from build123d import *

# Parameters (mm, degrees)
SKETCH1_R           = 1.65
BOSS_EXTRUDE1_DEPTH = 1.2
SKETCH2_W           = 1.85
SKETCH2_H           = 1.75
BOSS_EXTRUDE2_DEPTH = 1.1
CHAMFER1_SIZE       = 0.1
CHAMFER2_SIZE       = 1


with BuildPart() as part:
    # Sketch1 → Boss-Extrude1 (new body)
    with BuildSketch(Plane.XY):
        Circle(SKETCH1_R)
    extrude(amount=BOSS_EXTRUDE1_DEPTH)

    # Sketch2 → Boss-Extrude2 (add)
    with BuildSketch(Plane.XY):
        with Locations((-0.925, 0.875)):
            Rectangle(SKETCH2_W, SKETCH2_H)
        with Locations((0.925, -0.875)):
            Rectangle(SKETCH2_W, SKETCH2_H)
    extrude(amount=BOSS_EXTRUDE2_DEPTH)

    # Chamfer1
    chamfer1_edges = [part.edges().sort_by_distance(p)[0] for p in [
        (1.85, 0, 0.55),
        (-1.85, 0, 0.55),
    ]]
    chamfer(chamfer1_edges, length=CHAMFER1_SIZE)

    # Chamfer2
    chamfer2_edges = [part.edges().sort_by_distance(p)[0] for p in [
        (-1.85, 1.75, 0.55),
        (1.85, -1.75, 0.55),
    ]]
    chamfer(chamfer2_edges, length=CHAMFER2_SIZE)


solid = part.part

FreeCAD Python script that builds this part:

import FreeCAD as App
import Part
import Sketcher


def edges_at(feature, points):
    """Names of the edges that pass closest to the given points."""
    edges = feature.Shape.Edges
    near = lambda p: min(range(len(edges)), key=lambda i: edges[i].distToShape(Part.Vertex(*p))[0])
    return sorted({f"Edge{near(p) + 1}" for p in points})


def add_polygon(sketch, points):
    """Adds a closed chain of lines whose ends are joined by coincident constraints."""
    first, n = sketch.GeometryCount, len(points)
    for a, b in zip(points, points[1:] + points[:1]):
        sketch.addGeometry(Part.LineSegment(App.Vector(*a, 0), App.Vector(*b, 0)), False)
    for i in range(n):
        sketch.addConstraint(Sketcher.Constraint("Coincident", first + i, 2, first + (i + 1) % n, 1))

doc = App.newDocument("Part")
body = doc.addObject("PartDesign::Body", "Body")

sketch1 = body.newObject("Sketcher::SketchObject", "Sketch")
sketch1.AttachmentSupport = (doc.getObject("XY_Plane"), [""])
sketch1.MapMode = "FlatFace"
sketch1.addGeometry(Part.Circle(App.Vector(0, 0, 0), App.Vector(0, 0, 1), 1.6), False)
sketch1.addConstraint([
    Sketcher.Constraint("Coincident", 0, 3, -1, 1),
    Sketcher.Constraint("Diameter", 0, 3.3),
])
pad1 = body.newObject("PartDesign::Pad", "Pad")
pad1.Profile = sketch1
pad1.Length = 1.2

sketch2 = body.newObject("Sketcher::SketchObject", "Sketch001")
sketch2.AttachmentSupport = (doc.getObject("XY_Plane"), [""])
sketch2.MapMode = "FlatFace"
add_polygon(sketch2, [(-1.9, 1.8), (-1.9, 0), (0, 0), (0, 1.8)])
add_polygon(sketch2, [(0, 0), (0, -1.8), (1.9, -1.8), (1.9, 0)])
sketch2.addConstraint([
    Sketcher.Constraint("Vertical", 0),
    Sketcher.Constraint("Horizontal", 1),
    Sketcher.Constraint("Vertical", 2),
    Sketcher.Constraint("Horizontal", 3),
    Sketcher.Constraint("Vertical", 4),
    Sketcher.Constraint("Horizontal", 5),
    Sketcher.Constraint("Vertical", 6),
    Sketcher.Constraint("Horizontal", 7),
    Sketcher.Constraint("Coincident", 1, 2, -1, 1),
    Sketcher.Constraint("Coincident", 7, 2, -1, 1),
    Sketcher.Constraint("Symmetric", 3, 2, 5, 2, -1, 1),
    Sketcher.Constraint("DistanceX", 1, 1, 1, 2, 1.85),
    Sketcher.Constraint("DistanceY", 0, 2, 0, 1, 1.75),
])
pad2 = body.newObject("PartDesign::Pad", "Pad001")
pad2.Profile = sketch2
pad2.Length = 1.1
doc.recompute()

chamfer = body.newObject("PartDesign::Chamfer", "Chamfer")
chamfer.Base = (pad2, edges_at(pad2, [(1.85, 0, 0.55), (-1.85, 0, 0.55)]))
chamfer.Size = 0.1
doc.recompute()

chamfer2 = body.newObject("PartDesign::Chamfer", "Chamfer001")
chamfer2.Base = (chamfer, edges_at(chamfer, [(-1.85, 1.75, 0.55), (1.85, -1.75, 0.55)]))
chamfer2.Size = 1

doc.recompute()
